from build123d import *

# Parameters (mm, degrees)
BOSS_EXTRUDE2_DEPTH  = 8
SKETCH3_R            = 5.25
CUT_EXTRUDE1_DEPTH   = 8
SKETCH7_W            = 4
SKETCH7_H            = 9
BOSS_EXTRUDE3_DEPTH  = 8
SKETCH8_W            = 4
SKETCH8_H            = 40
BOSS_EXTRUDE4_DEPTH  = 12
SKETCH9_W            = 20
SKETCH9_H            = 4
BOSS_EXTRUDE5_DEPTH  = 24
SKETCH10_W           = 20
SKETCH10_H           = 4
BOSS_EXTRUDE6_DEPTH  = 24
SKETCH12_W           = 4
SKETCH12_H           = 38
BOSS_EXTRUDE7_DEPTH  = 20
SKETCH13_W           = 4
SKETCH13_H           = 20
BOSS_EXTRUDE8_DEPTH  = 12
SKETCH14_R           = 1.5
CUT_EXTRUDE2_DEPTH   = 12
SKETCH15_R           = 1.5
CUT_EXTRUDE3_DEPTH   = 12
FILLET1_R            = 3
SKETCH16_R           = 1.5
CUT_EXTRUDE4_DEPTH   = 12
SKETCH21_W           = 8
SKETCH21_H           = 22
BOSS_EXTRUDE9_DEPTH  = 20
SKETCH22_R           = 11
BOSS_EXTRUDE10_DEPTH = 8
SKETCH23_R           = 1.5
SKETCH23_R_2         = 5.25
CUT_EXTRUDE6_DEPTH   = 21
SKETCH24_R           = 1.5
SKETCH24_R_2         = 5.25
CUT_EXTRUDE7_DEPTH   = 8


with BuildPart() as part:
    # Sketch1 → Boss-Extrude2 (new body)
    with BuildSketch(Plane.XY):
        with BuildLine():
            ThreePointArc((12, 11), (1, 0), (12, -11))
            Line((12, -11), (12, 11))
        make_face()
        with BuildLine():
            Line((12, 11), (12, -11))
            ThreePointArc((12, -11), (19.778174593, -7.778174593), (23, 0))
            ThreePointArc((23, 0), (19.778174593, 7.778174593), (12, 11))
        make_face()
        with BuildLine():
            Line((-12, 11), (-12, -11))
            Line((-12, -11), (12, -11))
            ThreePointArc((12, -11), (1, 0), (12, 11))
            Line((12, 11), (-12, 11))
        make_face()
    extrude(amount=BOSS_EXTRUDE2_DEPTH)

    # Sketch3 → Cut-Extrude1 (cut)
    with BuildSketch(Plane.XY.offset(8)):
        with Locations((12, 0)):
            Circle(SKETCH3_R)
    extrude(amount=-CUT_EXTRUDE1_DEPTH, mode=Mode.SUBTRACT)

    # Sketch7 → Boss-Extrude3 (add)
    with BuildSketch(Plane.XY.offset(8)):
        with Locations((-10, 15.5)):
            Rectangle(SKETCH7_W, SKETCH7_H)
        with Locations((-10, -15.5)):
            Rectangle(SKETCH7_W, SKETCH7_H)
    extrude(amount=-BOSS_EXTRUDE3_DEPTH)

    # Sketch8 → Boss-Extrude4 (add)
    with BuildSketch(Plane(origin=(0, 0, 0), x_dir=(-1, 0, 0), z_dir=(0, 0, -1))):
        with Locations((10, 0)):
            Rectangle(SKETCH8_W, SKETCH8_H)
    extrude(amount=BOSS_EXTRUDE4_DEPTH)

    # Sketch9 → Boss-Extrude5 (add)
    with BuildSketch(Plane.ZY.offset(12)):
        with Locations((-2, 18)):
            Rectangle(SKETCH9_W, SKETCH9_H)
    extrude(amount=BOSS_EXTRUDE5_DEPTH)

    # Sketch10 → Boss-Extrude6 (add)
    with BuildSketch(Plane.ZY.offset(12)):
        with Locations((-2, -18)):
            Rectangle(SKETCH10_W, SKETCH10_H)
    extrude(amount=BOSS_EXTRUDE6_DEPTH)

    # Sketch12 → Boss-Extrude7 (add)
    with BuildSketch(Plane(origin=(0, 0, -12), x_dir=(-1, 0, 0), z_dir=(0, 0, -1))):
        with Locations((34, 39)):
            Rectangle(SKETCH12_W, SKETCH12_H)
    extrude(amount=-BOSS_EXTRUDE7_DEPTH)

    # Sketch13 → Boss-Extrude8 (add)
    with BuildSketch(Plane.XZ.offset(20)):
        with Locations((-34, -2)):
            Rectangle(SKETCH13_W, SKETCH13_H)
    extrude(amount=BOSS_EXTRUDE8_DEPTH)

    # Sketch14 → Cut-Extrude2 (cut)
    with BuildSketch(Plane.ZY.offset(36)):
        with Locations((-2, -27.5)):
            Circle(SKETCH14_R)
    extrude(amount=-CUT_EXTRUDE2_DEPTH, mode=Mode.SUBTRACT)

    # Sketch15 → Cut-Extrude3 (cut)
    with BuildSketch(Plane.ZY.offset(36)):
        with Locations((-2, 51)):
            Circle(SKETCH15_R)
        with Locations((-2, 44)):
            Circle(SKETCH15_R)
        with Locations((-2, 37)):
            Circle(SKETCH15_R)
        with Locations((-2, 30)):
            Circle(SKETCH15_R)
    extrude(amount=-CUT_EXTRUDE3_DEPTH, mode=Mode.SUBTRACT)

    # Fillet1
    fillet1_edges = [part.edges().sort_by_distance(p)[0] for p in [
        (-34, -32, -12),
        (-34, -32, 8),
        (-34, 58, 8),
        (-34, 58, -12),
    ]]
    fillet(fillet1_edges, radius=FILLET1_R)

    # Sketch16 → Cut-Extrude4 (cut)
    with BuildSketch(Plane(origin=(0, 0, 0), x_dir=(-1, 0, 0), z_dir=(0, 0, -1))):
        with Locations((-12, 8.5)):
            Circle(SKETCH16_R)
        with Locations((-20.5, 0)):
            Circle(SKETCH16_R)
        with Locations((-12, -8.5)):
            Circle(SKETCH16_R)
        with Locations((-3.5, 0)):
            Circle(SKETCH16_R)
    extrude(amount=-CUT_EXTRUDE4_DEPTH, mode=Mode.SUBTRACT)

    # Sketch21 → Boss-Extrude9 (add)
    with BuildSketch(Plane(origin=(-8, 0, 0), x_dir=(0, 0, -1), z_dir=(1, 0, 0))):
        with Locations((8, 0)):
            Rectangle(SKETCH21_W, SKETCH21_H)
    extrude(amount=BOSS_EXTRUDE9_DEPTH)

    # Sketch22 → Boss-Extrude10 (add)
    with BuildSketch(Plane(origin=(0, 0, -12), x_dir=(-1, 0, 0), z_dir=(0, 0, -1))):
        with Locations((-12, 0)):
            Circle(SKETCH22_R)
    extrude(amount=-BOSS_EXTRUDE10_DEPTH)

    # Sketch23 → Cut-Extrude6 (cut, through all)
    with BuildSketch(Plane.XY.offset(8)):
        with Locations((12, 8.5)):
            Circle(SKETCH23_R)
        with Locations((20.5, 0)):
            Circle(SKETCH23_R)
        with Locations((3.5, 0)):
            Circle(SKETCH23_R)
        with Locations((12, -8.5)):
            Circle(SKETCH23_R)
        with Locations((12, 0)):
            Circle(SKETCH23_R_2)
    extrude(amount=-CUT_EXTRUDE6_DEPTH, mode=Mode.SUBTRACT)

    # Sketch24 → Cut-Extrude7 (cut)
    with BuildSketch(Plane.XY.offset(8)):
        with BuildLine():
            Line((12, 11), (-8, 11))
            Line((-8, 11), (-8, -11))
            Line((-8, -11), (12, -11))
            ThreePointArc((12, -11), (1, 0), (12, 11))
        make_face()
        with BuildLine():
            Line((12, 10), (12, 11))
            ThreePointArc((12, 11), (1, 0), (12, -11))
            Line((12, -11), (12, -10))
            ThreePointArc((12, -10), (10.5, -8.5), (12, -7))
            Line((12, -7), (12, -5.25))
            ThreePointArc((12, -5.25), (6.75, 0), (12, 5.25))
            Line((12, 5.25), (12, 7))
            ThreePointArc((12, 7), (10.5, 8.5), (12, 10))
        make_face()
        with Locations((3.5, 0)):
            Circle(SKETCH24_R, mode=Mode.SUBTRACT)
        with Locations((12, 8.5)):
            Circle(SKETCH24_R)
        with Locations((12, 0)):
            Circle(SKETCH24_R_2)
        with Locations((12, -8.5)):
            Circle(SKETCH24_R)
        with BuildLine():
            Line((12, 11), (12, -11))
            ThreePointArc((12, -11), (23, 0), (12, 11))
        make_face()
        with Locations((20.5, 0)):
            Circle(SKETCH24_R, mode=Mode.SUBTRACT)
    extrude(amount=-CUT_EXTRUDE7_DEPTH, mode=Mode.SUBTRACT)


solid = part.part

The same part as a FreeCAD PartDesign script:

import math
import FreeCAD as App
import Part
import Sketcher
from FreeCAD import Vector
Q = App.Units.Quantity


def edges_at(feature, points):
    """Names of the edges that pass closest to the given points."""
    edges = feature.Shape.Edges
    near = lambda p: min(range(len(edges)), key=lambda i: edges[i].distToShape(Part.Vertex(*p))[0])
    return sorted({f"Edge{near(p) + 1}" for p in points})


def add_polygon(sketch, points):
    """Adds a closed chain of lines whose ends are joined by coincident constraints."""
    first, n = sketch.GeometryCount, len(points)
    for a, b in zip(points, points[1:] + points[:1]):
        sketch.addGeometry(Part.LineSegment(App.Vector(*a, 0), App.Vector(*b, 0)), False)
    for i in range(n):
        sketch.addConstraint(Sketcher.Constraint("Coincident", first + i, 2, first + (i + 1) % n, 1))

doc = App.newDocument("Part")
body = doc.addObject("PartDesign::Body", "Body")

sketch1 = body.newObject("Sketcher::SketchObject", "Sketch")
sketch1.AttachmentSupport = (doc.getObject("XY_Plane"), [""])
sketch1.MapMode = "FlatFace"
sketch1.addGeometry([
    Part.ArcOfCircle(Part.Circle(Vector(12, 0, 0), Vector(0, 0, 1), 11), math.radians(-90), math.radians(0)),
    Part.ArcOfCircle(Part.Circle(Vector(12, 0, 0), Vector(0, 0, 1), 11), math.radians(0), math.radians(90)),
    Part.LineSegment(Vector(12, 11, 0), Vector(-12, 11, 0)),
    Part.LineSegment(Vector(-12, 11, 0), Vector(-12, -11, 0)),
    Part.LineSegment(Vector(-12, -11, 0), Vector(12, -11, 0)),
], False)
sketch1.addConstraint([
    Sketcher.Constraint("Tangent", 0, 2, 1, 1),
    Sketcher.Constraint("Tangent", 1, 2, 2, 1),
    Sketcher.Constraint("Coincident", 2, 2, 3, 1),
    Sketcher.Constraint("Coincident", 3, 2, 4, 1),
    Sketcher.Constraint("Tangent", 4, 2, 0, 1),
    Sketcher.Constraint("Horizontal", 2),
    Sketcher.Constraint("Vertical", 3),
    Sketcher.Constraint("Horizontal", 4),
    Sketcher.Constraint("Equal", 0, 1),
    Sketcher.Constraint("Symmetric", 1, 2, 3, 2, -1, 1),
    Sketcher.Constraint("PointOnObject", 0, 2, -1),
    Sketcher.Constraint("Radius", 0, Q("11 mm")),
    Sketcher.Constraint("DistanceX", 2, 2, 2, 1, Q("24 mm")),
])
pad1 = body.newObject("PartDesign::Pad", "Pad")
pad1.Profile = sketch1
pad1.Length = 8

sketch2 = body.newObject("Sketcher::SketchObject", "Sketch001")
sketch2.AttachmentSupport = (doc.getObject("XY_Plane"), [""])
sketch2.MapMode = "FlatFace"
sketch2.AttachmentOffset = App.Placement(Vector(0, 0, 8), App.Rotation())
sketch2.addGeometry(Part.Circle(Vector(12, 0, 0), Vector(0, 0, 1), 5), False)
sketch2.addConstraint([
    Sketcher.Constraint("PointOnObject", 0, 3, -1),
    Sketcher.Constraint("Diameter", 0, Q("10.5 mm")),
    Sketcher.Constraint("DistanceX", -1, 1, 0, 3, Q("12 mm")),
])
pocket1 = body.newObject("PartDesign::Pocket", "Pocket")
pocket1.Profile = sketch2
pocket1.Length = 8

sketch3 = body.newObject("Sketcher::SketchObject", "Sketch002")
sketch3.AttachmentSupport = (doc.getObject("XY_Plane"), [""])
sketch3.MapMode = "FlatFace"
sketch3.AttachmentOffset = App.Placement(Vector(0, 0, 8), App.Rotation())
add_polygon(sketch3, [(-12, 20), (-12, 11), (-8, 11), (-8, 20)])
add_polygon(sketch3, [(-12, -11), (-12, -20), (-8, -20), (-8, -11)])
sketch3.addConstraint([
    Sketcher.Constraint("Vertical", 0),
    Sketcher.Constraint("Horizontal", 1),
    Sketcher.Constraint("Vertical", 2),
    Sketcher.Constraint("Horizontal", 3),
    Sketcher.Constraint("Vertical", 4),
    Sketcher.Constraint("Horizontal", 5),
    Sketcher.Constraint("Vertical", 6),
    Sketcher.Constraint("Horizontal", 7),
    Sketcher.Constraint("Symmetric", 3, 2, 4, 2, -1),
    Sketcher.Constraint("Symmetric", 1, 2, 6, 2, -1),
    Sketcher.Constraint("DistanceX", 1, 1, 1, 2, Q("4 mm")),
    Sketcher.Constraint("DistanceY", 0, 2, 0, 1, Q("9 mm")),
    Sketcher.Constraint("DistanceX", 0, 2, -1, 1, Q("12 mm")),
    Sketcher.Constraint("DistanceY", -1, 1, 0, 2, Q("11 mm")),
])
pad2 = body.newObject("PartDesign::Pad", "Pad001")
pad2.Profile = sketch3
pad2.Length = 8
pad2.Reversed = True

sketch4 = body.newObject("Sketcher::SketchObject", "Sketch003")
sketch4.AttachmentSupport = (doc.getObject("XY_Plane"), [""])
sketch4.MapMode = "FlatFace"
add_polygon(sketch4, [(-8, 20), (-8, -20), (-12, -20), (-12, 20)])
sketch4.addConstraint([
    Sketcher.Constraint("Vertical", 0),
    Sketcher.Constraint("Horizontal", 1),
    Sketcher.Constraint("Vertical", 2),
    Sketcher.Constraint("Horizontal", 3),
    Sketcher.Constraint("DistanceX", 1, 2, 1, 1, Q("4 mm")),
    Sketcher.Constraint("DistanceY", 0, 2, 0, 1, Q("40 mm")),
    Sketcher.Constraint("DistanceX", 0, 2, -1, 1, Q("8 mm")),
    Sketcher.Constraint("DistanceY", 0, 2, -1, 1, Q("20 mm")),
])
pad3 = body.newObject("PartDesign::Pad", "Pad002")
pad3.Profile = sketch4
pad3.Length = 12
pad3.Reversed = True

sketch5 = body.newObject("Sketcher::SketchObject", "Sketch004")
sketch5.AttachmentSupport = (doc.getObject("YZ_Plane"), [""])
sketch5.MapMode = "FlatFace"
sketch5.AttachmentOffset = App.Placement(Vector(0, 0, -12), App.Rotation())
add_polygon(sketch5, [(20, -12), (16, -12), (16, 8), (20, 8)])
sketch5.addConstraint([
    Sketcher.Constraint("Horizontal", 0),
    Sketcher.Constraint("Vertical", 1),
    Sketcher.Constraint("Horizontal", 2),
    Sketcher.Constraint("Vertical", 3),
    Sketcher.Constraint("DistanceX", 0, 2, 0, 1, Q("4 mm")),
    Sketcher.Constraint("DistanceY", 1, 1, 1, 2, Q("20 mm")),
    Sketcher.Constraint("DistanceX", -1, 1, 0, 2, Q("16 mm")),
    Sketcher.Constraint("DistanceY", 0, 2, -1, 1, Q("12 mm")),
])
pad4 = body.newObject("PartDesign::Pad", "Pad003")
pad4.Profile = sketch5
pad4.Length = 24
pad4.Reversed = True

sketch6 = body.newObject("Sketcher::SketchObject", "Sketch005")
sketch6.AttachmentSupport = (doc.getObject("YZ_Plane"), [""])
sketch6.MapMode = "FlatFace"
sketch6.AttachmentOffset = App.Placement(Vector(0, 0, -12), App.Rotation())
add_polygon(sketch6, [(-16, -12), (-20, -12), (-20, 8), (-16, 8)])
sketch6.addConstraint([
    Sketcher.Constraint("Horizontal", 0),
    Sketcher.Constraint("Vertical", 1),
    Sketcher.Constraint("Horizontal", 2),
    Sketcher.Constraint("Vertical", 3),
    Sketcher.Constraint("DistanceX", 0, 2, 0, 1, Q("4 mm")),
    Sketcher.Constraint("DistanceY", 1, 1, 1, 2, Q("20 mm")),
    Sketcher.Constraint("DistanceX", 0, 2, -1, 1, Q("20 mm")),
    Sketcher.Constraint("DistanceY", 0, 2, -1, 1, Q("12 mm")),
])
pad5 = body.newObject("PartDesign::Pad", "Pad004")
pad5.Profile = sketch6
pad5.Length = 24
pad5.Reversed = True

sketch7 = body.newObject("Sketcher::SketchObject", "Sketch006")
sketch7.AttachmentSupport = (doc.getObject("XY_Plane"), [""])
sketch7.MapMode = "FlatFace"
sketch7.AttachmentOffset = App.Placement(Vector(0, 0, -12), App.Rotation())
add_polygon(sketch7, [(-32, 58), (-32, 20), (-36, 20), (-36, 58)])
sketch7.addConstraint([
    Sketcher.Constraint("Vertical", 0),
    Sketcher.Constraint("Horizontal", 1),
    Sketcher.Constraint("Vertical", 2),
    Sketcher.Constraint("Horizontal", 3),
    Sketcher.Constraint("DistanceX", 1, 2, 1, 1, Q("4 mm")),
    Sketcher.Constraint("DistanceY", 0, 2, 0, 1, Q("38 mm")),
    Sketcher.Constraint("DistanceX", 0, 2, -1, 1, Q("32 mm")),
    Sketcher.Constraint("DistanceY", -1, 1, 0, 2, Q("20 mm")),
])
pad6 = body.newObject("PartDesign::Pad", "Pad005")
pad6.Profile = sketch7
pad6.Length = 20

sketch8 = body.newObject("Sketcher::SketchObject", "Sketch007")
sketch8.AttachmentSupport = (doc.getObject("XZ_Plane"), [""])
sketch8.MapMode = "FlatFace"
sketch8.AttachmentOffset = App.Placement(Vector(0, 0, 20), App.Rotation())
add_polygon(sketch8, [(-36, 8), (-36, -12), (-32, -12), (-32, 8)])
sketch8.addConstraint([
    Sketcher.Constraint("Vertical", 0),
    Sketcher.Constraint("Horizontal", 1),
    Sketcher.Constraint("Vertical", 2),
    Sketcher.Constraint("Horizontal", 3),
    Sketcher.Constraint("DistanceX", 1, 1, 1, 2, Q("4 mm")),
    Sketcher.Constraint("DistanceY", 0, 2, 0, 1, Q("20 mm")),
    Sketcher.Constraint("DistanceX", 0, 2, -1, 1, Q("36 mm")),
    Sketcher.Constraint("DistanceY", 0, 2, -1, 1, Q("12 mm")),
])
pad7 = body.newObject("PartDesign::Pad", "Pad006")
pad7.Profile = sketch8
pad7.Length = 12

sketch9 = body.newObject("Sketcher::SketchObject", "Sketch008")
sketch9.AttachmentSupport = (doc.getObject("YZ_Plane"), [""])
sketch9.MapMode = "FlatFace"
sketch9.AttachmentOffset = App.Placement(Vector(0, 0, -36), App.Rotation())
sketch9.addGeometry(Part.Circle(Vector(-27.5, -2, 0), Vector(0, 0, 1), 1.5), False)
sketch9.addConstraint([
    Sketcher.Constraint("Diameter", 0, Q("3 mm")),
    Sketcher.Constraint("DistanceY", 0, 3, -1, 1, Q("2 mm")),
    Sketcher.Constraint("DistanceX", 0, 3, -1, 1, Q("27.5 mm")),
])
pocket2 = body.newObject("PartDesign::Pocket", "Pocket001")
pocket2.Profile = sketch9
pocket2.Length = 12
pocket2.Reversed = True

sketch10 = body.newObject("Sketcher::SketchObject", "Sketch009")
sketch10.AttachmentSupport = (doc.getObject("YZ_Plane"), [""])
sketch10.MapMode = "FlatFace"
sketch10.AttachmentOffset = App.Placement(Vector(0, 0, -36), App.Rotation())
sketch10.addGeometry([
    Part.Circle(Vector(51, -2, 0), Vector(0, 0, 1), 1.5),
    Part.Circle(Vector(44, -2, 0), Vector(0, 0, 1), 1.5),
    Part.Circle(Vector(37, -2, 0), Vector(0, 0, 1), 1.5),
    Part.Circle(Vector(30, -2, 0), Vector(0, 0, 1), 1.5),
], False)
sketch10.addConstraint([
    Sketcher.Constraint("Equal", 0, 1),
    Sketcher.Constraint("Equal", 1, 2),
    Sketcher.Constraint("Equal", 2, 3),
    Sketcher.Constraint("Horizontal", 0, 3, 1, 3),
    Sketcher.Constraint("Horizontal", 1, 3, 2, 3),
    Sketcher.Constraint("Horizontal", 2, 3, 3, 3),
    Sketcher.Constraint("Diameter", 0, Q("3 mm")),
    Sketcher.Constraint("DistanceX", -1, 1, 0, 3, Q("51 mm")),
    Sketcher.Constraint("DistanceY", 0, 3, -1, 1, Q("2 mm")),
    Sketcher.Constraint("DistanceX", -1, 1, 1, 3, Q("44 mm")),
    Sketcher.Constraint("DistanceX", -1, 1, 2, 3, Q("37 mm")),
    Sketcher.Constraint("DistanceX", -1, 1, 3, 3, Q("30 mm")),
])
pocket3 = body.newObject("PartDesign::Pocket", "Pocket002")
pocket3.Profile = sketch10
pocket3.Length = 12
pocket3.Reversed = True
doc.recompute()

fillet = body.newObject("PartDesign::Fillet", "Fillet")
fillet.Base = (pocket3, edges_at(pocket3, [
    (-34, -32, -12),
    (-34, -32, 8),
    (-34, 58, 8),
    (-34, 58, -12),
]))
fillet.Radius = 3

sketch11 = body.newObject("Sketcher::SketchObject", "Sketch010")
sketch11.AttachmentSupport = (doc.getObject("XY_Plane"), [""])
sketch11.MapMode = "FlatFace"
sketch11.addGeometry([
    Part.Circle(Vector(12, 8.5, 0), Vector(0, 0, 1), 1.5),
    Part.Circle(Vector(20.5, 0, 0), Vector(0, 0, 1), 1.5),
    Part.Circle(Vector(12, -8.5, 0), Vector(0, 0, 1), 1.5),
    Part.Circle(Vector(3.5, 0, 0), Vector(0, 0, 1), 1.5),
], False)
sketch11.addConstraint([
    Sketcher.Constraint("Equal", 0, 1),
    Sketcher.Constraint("Equal", 1, 2),
    Sketcher.Constraint("Equal", 2, 3),
    Sketcher.Constraint("Symmetric", 0, 3, 2, 3, -1),
    Sketcher.Constraint("PointOnObject", 1, 3, -1),
    Sketcher.Constraint("PointOnObject", 3, 3, -1),
    Sketcher.Constraint("Diameter", 0, Q("3 mm")),
    Sketcher.Constraint("DistanceX", -1, 1, 0, 3, Q("12 mm")),
    Sketcher.Constraint("DistanceY", 2, 3, 0, 3, Q("17 mm")),
    Sketcher.Constraint("DistanceX", 3, 3, 1, 3, Q("17 mm")),
    Sketcher.Constraint("DistanceX", -1, 1, 1, 3, Q("20.5 mm")),
])
pocket4 = body.newObject("PartDesign::Pocket", "Pocket003")
pocket4.Profile = sketch11
pocket4.Length = 12
pocket4.Reversed = True

sketch12 = body.newObject("Sketcher::SketchObject", "Sketch011")
sketch12.AttachmentSupport = (doc.getObject("YZ_Plane"), [""])
sketch12.MapMode = "FlatFace"
sketch12.AttachmentOffset = App.Placement(Vector(0, 0, -8), App.Rotation())
add_polygon(sketch12, [(11, -4), (-11, -4), (-11, -12), (11, -12)])
sketch12.addConstraint([
    Sketcher.Constraint("Horizontal", 0),
    Sketcher.Constraint("Vertical", 1),
    Sketcher.Constraint("Horizontal", 2),
    Sketcher.Constraint("Vertical", 3),
    Sketcher.Constraint("DistanceX", 0, 2, 0, 1, Q("22 mm")),
    Sketcher.Constraint("DistanceY", 1, 2, 1, 1, Q("8 mm")),
    Sketcher.Constraint("DistanceX", 0, 2, -1, 1, Q("11 mm")),
    Sketcher.Constraint("DistanceY", 0, 2, -1, 1, Q("4 mm")),
])
pad8 = body.newObject("PartDesign::Pad", "Pad007")
pad8.Profile = sketch12
pad8.Length = 20

sketch13 = body.newObject("Sketcher::SketchObject", "Sketch012")
sketch13.AttachmentSupport = (doc.getObject("XY_Plane"), [""])
sketch13.MapMode = "FlatFace"
sketch13.AttachmentOffset = App.Placement(Vector(0, 0, -12), App.Rotation())
sketch13.addGeometry(Part.Circle(Vector(12, 0, 0), Vector(0, 0, 1), 11), False)
sketch13.addConstraint([
    Sketcher.Constraint("PointOnObject", 0, 3, -1),
    Sketcher.Constraint("Diameter", 0, Q("22 mm")),
    Sketcher.Constraint("DistanceX", -1, 1, 0, 3, Q("12 mm")),
])
pad9 = body.newObject("PartDesign::Pad", "Pad008")
pad9.Profile = sketch13
pad9.Length = 8

sketch14 = body.newObject("Sketcher::SketchObject", "Sketch013")
sketch14.AttachmentSupport = (doc.getObject("XY_Plane"), [""])
sketch14.MapMode = "FlatFace"
sketch14.AttachmentOffset = App.Placement(Vector(0, 0, 8), App.Rotation())
sketch14.addGeometry([
    Part.Circle(Vector(12, 8.5, 0), Vector(0, 0, 1), 1.5),
    Part.Circle(Vector(20.5, 0, 0), Vector(0, 0, 1), 1.5),
    Part.Circle(Vector(3.5, 0, 0), Vector(0, 0, 1), 1.5),
    Part.Circle(Vector(12, -8.5, 0), Vector(0, 0, 1), 1.5),
    Part.Circle(Vector(12, 0, 0), Vector(0, 0, 1), 5.2),
], False)
sketch14.addConstraint([
    Sketcher.Constraint("Equal", 0, 1),
    Sketcher.Constraint("Equal", 1, 2),
    Sketcher.Constraint("Equal", 2, 3),
    Sketcher.Constraint("Symmetric", 0, 3, 3, 3, -1),
    Sketcher.Constraint("PointOnObject", 1, 3, -1),
    Sketcher.Constraint("PointOnObject", 2, 3, -1),
    Sketcher.Constraint("PointOnObject", 4, 3, -1),
    Sketcher.Constraint("Vertical", 3, 3, 4, 3),
    Sketcher.Constraint("Diameter", 0, Q("3 mm")),
    Sketcher.Constraint("Diameter", 4, Q("10.5 mm")),
    Sketcher.Constraint("DistanceX", -1, 1, 0, 3, Q("12 mm")),
    Sketcher.Constraint("DistanceX", 2, 3, 1, 3, Q("17 mm")),
    Sketcher.Constraint("DistanceY", 3, 3, 0, 3, Q("17 mm")),
    Sketcher.Constraint("DistanceX", -1, 1, 1, 3, Q("20.5 mm")),
])
pocket5 = body.newObject("PartDesign::Pocket", "Pocket004")
pocket5.Profile = sketch14
pocket5.Type = "ThroughAll"

sketch15 = body.newObject("Sketcher::SketchObject", "Sketch014")
sketch15.AttachmentSupport = (doc.getObject("XY_Plane"), [""])
sketch15.MapMode = "FlatFace"
sketch15.AttachmentOffset = App.Placement(Vector(0, 0, 8), App.Rotation())
sketch15.addGeometry([
    Part.LineSegment(Vector(-8, -11, 0), Vector(12, -11, 0)),
    Part.ArcOfCircle(Part.Circle(Vector(12, 0, 0), Vector(0, 0, 1), 11), math.radians(-90), math.radians(90)),
    Part.LineSegment(Vector(12, 11, 0), Vector(-8, 11, 0)),
    Part.LineSegment(Vector(-8, 11, 0), Vector(-8, -11, 0)),
    Part.Circle(Vector(3.5, 0, 0), Vector(0, 0, 1), 1.5),
    Part.Circle(Vector(20.5, 0, 0), Vector(0, 0, 1), 1.5),
], False)
sketch15.addConstraint([
    Sketcher.Constraint("Tangent", 0, 2, 1, 1),
    Sketcher.Constraint("Tangent", 1, 2, 2, 1),
    Sketcher.Constraint("Coincident", 2, 2, 3, 1),
    Sketcher.Constraint("Coincident", 3, 2, 0, 1),
    Sketcher.Constraint("Horizontal", 0),
    Sketcher.Constraint("Horizontal", 2),
    Sketcher.Constraint("Vertical", 3),
    Sketcher.Constraint("Equal", 4, 5),
    Sketcher.Constraint("PointOnObject", 1, 3, -1),
    Sketcher.Constraint("PointOnObject", 4, 3, -1),
    Sketcher.Constraint("PointOnObject", 5, 3, -1),
    Sketcher.Constraint("Diameter", 4, Q("3 mm")),
    Sketcher.Constraint("Radius", 1, Q("11 mm")),
    Sketcher.Constraint("DistanceX", 0, 1, 0, 2, Q("20 mm")),
    Sketcher.Constraint("DistanceX", -1, 1, 1, 3, Q("12 mm")),
    Sketcher.Constraint("DistanceX", 4, 3, 5, 3, Q("17 mm")),
    Sketcher.Constraint("DistanceX", -1, 1, 4, 3, Q("3.5 mm")),
])
pocket6 = body.newObject("PartDesign::Pocket", "Pocket005")
pocket6.Profile = sketch15
pocket6.Length = 8

doc.recompute()
